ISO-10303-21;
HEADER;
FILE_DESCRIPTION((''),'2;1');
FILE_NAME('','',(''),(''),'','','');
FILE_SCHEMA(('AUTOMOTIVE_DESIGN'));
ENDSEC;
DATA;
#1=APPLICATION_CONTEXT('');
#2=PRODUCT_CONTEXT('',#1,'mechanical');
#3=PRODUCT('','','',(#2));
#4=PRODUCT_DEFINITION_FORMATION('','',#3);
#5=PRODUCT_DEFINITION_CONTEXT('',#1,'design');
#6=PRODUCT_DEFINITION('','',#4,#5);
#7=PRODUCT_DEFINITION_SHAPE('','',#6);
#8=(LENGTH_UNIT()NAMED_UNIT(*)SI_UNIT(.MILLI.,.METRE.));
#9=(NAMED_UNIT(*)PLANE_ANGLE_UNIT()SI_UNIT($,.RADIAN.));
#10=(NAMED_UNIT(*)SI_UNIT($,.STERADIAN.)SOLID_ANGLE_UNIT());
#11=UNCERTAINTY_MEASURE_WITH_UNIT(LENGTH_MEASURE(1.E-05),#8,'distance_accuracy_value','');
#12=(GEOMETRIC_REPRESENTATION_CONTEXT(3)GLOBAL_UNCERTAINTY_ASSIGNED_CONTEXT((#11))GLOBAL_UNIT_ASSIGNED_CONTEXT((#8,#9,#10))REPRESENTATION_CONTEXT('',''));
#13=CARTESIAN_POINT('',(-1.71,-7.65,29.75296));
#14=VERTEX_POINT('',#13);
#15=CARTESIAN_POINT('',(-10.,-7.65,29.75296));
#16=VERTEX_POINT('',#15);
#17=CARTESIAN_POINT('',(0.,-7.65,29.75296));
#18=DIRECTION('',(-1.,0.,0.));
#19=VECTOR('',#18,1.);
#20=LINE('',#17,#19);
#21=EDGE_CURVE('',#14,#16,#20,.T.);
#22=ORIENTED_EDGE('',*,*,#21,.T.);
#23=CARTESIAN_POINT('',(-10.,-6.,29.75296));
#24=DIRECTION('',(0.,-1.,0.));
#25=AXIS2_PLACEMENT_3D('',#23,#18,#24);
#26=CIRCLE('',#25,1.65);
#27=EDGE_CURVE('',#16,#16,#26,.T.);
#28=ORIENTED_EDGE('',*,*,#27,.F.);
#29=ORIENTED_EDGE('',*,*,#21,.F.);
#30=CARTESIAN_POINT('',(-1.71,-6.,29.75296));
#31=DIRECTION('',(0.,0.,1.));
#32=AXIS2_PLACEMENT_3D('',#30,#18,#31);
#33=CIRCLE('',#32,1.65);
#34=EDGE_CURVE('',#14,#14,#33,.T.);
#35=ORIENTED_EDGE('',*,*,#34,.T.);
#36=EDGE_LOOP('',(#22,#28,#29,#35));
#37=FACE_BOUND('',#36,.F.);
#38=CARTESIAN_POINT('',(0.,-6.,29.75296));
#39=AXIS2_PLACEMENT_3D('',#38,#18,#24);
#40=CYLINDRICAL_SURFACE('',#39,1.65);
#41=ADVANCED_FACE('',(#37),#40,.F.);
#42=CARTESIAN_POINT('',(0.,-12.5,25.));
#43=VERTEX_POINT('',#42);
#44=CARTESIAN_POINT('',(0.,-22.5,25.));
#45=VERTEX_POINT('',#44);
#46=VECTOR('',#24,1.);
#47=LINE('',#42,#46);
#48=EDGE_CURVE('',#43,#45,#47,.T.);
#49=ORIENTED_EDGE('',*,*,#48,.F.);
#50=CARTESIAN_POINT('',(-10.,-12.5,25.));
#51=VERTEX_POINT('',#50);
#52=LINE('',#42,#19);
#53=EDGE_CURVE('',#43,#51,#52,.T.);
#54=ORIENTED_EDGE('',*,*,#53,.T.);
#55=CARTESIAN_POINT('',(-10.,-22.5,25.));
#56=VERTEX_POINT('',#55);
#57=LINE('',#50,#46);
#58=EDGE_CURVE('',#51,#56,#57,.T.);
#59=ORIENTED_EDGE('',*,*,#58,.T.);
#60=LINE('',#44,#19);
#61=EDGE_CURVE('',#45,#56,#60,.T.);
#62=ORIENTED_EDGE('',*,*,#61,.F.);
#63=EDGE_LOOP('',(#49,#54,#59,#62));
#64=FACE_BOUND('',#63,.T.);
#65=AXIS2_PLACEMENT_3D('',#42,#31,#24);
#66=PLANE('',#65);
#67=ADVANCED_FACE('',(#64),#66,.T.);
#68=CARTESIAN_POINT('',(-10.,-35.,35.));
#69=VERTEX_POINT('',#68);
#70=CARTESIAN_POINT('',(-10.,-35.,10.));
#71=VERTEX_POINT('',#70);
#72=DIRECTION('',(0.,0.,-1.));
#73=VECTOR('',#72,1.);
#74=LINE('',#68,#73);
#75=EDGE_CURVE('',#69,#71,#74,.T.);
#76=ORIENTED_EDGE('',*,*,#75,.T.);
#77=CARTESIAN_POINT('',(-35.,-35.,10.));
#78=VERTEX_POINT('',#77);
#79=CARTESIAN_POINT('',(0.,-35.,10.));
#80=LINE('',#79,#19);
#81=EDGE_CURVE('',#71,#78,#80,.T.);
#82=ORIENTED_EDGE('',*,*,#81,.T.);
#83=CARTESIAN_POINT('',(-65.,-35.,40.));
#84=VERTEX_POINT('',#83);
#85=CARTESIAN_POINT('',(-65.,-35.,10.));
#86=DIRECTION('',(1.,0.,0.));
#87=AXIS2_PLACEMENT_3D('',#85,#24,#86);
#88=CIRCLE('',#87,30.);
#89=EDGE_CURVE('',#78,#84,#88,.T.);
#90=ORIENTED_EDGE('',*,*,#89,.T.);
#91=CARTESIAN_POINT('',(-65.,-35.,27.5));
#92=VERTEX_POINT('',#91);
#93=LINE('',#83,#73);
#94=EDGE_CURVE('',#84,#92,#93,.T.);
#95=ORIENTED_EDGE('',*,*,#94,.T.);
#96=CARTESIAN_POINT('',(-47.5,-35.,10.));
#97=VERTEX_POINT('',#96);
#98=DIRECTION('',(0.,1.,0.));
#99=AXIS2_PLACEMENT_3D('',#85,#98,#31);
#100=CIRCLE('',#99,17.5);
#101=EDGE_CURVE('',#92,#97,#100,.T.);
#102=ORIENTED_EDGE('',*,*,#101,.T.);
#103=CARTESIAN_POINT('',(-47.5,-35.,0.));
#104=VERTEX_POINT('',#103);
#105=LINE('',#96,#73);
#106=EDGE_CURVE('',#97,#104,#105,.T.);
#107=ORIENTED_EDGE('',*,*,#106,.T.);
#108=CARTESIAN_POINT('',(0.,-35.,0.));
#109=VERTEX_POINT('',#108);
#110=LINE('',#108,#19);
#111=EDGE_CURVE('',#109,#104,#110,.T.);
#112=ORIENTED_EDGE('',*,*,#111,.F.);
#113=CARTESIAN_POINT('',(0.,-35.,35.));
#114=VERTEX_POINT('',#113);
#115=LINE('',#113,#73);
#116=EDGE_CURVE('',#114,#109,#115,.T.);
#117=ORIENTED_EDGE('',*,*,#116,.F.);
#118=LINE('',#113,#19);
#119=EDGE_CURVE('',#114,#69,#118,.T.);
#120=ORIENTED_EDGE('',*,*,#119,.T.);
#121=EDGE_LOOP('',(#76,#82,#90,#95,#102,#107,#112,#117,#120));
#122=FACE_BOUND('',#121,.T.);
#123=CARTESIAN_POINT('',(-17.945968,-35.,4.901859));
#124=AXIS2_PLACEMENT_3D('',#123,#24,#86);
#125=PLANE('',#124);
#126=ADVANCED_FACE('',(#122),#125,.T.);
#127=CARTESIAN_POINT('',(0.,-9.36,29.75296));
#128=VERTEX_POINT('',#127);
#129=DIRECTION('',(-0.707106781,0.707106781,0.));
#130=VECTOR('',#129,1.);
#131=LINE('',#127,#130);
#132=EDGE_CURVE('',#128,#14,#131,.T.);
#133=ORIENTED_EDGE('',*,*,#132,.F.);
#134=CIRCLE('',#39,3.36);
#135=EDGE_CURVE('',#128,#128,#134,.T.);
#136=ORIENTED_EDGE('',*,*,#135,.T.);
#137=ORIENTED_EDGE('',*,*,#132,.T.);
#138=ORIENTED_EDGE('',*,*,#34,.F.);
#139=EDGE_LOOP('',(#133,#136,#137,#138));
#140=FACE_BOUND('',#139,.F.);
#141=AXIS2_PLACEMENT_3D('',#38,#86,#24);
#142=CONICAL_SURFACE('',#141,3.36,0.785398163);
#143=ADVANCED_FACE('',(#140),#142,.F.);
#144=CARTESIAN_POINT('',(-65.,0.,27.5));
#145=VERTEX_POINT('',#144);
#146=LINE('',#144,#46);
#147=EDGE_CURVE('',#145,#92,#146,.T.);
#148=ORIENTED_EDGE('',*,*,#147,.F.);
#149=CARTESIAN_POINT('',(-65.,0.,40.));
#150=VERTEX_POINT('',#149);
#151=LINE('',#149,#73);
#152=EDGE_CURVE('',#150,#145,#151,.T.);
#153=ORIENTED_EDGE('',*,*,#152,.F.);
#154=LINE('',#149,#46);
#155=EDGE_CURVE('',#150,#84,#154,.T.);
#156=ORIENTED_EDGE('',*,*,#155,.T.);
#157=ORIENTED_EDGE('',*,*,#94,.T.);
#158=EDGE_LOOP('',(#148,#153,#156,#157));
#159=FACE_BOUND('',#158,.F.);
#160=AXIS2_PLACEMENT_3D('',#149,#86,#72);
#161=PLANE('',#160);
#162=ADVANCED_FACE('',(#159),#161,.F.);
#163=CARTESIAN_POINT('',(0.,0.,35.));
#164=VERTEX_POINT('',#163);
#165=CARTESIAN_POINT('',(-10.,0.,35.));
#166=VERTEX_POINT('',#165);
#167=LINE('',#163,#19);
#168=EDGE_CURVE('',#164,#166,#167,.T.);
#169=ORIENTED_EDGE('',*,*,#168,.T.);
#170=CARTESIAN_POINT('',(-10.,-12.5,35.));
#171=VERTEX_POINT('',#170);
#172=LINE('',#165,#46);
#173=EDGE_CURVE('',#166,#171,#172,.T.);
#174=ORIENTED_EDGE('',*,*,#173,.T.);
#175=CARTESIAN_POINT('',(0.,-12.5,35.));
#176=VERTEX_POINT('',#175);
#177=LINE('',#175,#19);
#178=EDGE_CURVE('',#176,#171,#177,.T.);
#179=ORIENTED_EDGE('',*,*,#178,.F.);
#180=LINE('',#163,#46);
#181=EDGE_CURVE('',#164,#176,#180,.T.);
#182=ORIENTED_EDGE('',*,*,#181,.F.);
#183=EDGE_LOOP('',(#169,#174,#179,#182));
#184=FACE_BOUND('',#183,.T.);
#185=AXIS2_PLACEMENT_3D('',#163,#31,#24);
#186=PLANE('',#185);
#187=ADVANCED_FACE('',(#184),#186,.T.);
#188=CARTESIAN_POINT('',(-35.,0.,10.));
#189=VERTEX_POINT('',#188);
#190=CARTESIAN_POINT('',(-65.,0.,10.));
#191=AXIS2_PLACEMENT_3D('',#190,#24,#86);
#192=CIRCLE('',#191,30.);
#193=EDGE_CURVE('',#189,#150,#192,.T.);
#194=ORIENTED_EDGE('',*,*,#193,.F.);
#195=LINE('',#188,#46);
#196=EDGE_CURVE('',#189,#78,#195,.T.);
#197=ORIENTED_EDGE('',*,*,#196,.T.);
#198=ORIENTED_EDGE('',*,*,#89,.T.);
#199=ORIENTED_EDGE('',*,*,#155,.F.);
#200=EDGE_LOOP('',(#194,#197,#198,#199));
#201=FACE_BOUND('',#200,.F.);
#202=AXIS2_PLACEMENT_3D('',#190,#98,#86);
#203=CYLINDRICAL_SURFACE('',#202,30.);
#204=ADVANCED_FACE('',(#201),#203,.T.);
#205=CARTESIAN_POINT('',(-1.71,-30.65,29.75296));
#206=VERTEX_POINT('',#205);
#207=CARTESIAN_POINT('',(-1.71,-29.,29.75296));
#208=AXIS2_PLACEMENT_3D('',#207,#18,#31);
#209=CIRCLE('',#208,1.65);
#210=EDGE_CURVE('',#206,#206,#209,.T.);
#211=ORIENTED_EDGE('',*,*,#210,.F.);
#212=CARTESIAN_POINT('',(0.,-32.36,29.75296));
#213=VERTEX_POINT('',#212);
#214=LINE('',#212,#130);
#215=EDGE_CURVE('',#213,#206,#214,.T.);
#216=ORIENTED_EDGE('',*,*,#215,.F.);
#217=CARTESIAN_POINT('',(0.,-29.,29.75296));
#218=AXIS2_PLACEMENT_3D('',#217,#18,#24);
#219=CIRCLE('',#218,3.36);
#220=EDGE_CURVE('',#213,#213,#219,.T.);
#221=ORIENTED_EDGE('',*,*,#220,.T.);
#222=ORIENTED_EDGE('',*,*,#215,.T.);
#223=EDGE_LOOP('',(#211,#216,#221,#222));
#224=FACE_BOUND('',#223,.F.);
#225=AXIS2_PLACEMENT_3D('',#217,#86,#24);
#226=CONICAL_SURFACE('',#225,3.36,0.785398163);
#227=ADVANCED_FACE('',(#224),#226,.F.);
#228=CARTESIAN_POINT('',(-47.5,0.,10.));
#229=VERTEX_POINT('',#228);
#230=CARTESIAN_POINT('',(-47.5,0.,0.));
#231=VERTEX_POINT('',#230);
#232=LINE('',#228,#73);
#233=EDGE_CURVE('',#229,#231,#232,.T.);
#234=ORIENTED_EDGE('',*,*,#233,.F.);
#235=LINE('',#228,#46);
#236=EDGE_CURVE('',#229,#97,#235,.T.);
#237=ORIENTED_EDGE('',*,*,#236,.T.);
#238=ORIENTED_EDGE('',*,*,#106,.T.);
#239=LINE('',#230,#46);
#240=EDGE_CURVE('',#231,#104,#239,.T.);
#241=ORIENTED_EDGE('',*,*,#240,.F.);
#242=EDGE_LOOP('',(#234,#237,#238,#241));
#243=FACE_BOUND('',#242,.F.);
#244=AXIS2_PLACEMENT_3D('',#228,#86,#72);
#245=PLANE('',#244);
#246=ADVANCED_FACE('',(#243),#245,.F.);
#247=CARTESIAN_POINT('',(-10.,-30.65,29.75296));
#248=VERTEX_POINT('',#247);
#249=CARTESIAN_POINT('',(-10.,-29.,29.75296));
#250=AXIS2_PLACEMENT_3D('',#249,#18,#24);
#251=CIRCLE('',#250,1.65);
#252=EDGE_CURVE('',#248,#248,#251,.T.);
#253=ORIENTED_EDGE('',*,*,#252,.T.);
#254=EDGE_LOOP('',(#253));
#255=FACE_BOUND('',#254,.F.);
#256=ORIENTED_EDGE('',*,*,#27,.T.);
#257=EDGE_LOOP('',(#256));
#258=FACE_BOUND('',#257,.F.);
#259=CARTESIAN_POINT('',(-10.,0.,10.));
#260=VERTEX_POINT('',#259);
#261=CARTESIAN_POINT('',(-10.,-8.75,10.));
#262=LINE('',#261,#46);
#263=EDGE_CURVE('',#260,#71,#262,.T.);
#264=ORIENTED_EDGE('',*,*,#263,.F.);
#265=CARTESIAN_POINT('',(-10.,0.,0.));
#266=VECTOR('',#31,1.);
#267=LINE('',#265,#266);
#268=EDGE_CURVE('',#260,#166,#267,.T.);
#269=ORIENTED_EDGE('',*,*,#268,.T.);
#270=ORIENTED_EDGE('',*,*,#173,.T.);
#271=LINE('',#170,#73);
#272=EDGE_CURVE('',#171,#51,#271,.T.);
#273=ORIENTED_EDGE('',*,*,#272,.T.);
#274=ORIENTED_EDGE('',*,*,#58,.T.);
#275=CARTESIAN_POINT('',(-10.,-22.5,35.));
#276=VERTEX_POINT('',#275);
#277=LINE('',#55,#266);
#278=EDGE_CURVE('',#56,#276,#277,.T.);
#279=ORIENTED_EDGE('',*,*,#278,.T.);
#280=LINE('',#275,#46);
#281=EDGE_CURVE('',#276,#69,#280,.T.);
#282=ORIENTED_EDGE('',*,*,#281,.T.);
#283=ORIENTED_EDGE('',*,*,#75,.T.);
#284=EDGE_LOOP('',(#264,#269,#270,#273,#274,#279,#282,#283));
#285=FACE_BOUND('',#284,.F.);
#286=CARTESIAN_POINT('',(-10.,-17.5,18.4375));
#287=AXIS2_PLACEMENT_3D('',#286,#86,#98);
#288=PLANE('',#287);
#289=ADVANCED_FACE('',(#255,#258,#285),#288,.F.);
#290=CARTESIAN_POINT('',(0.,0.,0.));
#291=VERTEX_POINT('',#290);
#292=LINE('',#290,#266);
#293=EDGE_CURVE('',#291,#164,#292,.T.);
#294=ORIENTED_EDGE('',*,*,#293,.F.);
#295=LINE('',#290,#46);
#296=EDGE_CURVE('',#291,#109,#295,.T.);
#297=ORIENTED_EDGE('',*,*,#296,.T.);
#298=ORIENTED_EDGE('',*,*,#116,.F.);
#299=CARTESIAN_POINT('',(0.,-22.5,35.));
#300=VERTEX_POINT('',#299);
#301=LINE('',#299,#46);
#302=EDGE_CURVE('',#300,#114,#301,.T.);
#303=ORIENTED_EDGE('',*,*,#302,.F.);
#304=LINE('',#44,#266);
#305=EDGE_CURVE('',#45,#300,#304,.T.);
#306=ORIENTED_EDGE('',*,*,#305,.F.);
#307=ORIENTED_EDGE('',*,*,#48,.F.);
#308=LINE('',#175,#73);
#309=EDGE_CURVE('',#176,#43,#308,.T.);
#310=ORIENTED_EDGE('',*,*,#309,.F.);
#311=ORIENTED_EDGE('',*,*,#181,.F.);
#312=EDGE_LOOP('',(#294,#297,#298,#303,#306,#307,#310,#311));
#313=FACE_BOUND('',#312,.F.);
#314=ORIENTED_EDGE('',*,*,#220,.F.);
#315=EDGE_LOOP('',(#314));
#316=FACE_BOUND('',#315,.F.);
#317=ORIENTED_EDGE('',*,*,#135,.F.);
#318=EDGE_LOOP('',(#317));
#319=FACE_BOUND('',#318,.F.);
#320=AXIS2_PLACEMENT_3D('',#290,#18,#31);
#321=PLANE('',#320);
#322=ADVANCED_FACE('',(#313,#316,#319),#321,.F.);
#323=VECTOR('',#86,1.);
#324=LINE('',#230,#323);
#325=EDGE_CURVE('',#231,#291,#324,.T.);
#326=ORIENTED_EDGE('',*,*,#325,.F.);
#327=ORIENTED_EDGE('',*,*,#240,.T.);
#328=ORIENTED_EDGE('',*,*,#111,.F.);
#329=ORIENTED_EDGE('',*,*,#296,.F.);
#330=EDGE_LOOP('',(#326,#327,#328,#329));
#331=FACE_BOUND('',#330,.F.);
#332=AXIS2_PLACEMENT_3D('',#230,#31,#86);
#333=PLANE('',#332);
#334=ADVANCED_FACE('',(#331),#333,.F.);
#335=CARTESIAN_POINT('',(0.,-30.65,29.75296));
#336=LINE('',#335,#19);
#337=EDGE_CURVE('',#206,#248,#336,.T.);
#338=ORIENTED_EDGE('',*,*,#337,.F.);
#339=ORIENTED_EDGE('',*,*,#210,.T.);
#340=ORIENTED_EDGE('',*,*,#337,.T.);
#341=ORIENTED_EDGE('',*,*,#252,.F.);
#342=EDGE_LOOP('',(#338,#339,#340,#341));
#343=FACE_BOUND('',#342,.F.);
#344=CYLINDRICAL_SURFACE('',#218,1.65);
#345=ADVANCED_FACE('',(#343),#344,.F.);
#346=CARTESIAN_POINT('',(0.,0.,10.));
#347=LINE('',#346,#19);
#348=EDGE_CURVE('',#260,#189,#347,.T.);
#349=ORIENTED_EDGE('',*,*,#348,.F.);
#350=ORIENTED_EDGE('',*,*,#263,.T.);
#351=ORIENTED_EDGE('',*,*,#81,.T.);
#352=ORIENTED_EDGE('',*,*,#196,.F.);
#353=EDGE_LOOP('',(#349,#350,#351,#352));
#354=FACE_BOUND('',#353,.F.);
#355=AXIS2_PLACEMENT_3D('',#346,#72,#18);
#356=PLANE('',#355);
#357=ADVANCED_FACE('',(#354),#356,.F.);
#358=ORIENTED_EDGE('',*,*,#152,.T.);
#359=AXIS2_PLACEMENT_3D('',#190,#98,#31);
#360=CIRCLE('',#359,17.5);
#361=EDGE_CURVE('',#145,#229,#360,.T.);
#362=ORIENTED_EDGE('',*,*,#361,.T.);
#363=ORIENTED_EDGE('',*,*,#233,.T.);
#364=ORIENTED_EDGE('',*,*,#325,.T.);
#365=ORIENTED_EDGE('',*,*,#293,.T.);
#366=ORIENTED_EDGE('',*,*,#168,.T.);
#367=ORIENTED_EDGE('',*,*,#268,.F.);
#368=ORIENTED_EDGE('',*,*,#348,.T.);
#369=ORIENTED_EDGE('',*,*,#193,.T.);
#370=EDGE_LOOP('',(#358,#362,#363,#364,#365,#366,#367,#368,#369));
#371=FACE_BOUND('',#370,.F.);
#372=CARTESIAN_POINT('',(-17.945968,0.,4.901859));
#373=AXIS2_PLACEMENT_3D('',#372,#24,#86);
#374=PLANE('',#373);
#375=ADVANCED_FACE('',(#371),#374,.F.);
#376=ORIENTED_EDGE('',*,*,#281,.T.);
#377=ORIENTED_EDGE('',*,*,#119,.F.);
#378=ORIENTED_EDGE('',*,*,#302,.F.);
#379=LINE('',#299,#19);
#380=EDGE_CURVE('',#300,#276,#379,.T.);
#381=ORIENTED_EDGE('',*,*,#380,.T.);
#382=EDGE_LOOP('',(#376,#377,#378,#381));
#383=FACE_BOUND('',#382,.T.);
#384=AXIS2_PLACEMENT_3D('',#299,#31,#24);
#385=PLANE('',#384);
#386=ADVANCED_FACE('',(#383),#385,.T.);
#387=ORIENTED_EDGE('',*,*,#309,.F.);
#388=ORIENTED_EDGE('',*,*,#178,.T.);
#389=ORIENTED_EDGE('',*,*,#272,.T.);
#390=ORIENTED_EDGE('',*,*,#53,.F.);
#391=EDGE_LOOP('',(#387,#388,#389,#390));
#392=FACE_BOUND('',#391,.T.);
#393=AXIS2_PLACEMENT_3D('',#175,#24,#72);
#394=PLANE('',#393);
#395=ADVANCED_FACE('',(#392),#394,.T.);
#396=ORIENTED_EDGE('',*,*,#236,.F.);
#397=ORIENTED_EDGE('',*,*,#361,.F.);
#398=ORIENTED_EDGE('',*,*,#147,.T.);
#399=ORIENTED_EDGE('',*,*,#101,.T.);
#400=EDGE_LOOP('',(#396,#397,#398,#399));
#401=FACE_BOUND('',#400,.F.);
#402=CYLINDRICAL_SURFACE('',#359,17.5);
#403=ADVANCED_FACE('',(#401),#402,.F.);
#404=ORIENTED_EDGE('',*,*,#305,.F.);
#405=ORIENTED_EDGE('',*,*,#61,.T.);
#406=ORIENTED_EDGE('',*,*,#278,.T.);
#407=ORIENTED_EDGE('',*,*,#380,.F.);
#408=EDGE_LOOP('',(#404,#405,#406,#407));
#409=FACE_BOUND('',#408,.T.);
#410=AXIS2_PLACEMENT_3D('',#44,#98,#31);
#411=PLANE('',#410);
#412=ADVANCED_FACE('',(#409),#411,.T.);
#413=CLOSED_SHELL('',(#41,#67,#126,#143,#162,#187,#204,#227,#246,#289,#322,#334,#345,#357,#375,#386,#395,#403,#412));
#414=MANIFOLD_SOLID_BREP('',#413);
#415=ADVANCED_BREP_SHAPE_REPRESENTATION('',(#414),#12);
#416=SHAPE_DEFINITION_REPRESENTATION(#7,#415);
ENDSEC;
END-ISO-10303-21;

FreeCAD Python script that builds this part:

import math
import FreeCAD as App
import Part
import Sketcher
from FreeCAD import Vector


def add_polygon(sketch, points):
    """Adds a closed chain of lines whose ends are joined by coincident constraints."""
    first, n = sketch.GeometryCount, len(points)
    for a, b in zip(points, points[1:] + points[:1]):
        sketch.addGeometry(Part.LineSegment(App.Vector(*a, 0), App.Vector(*b, 0)), False)
    for i in range(n):
        sketch.addConstraint(Sketcher.Constraint("Coincident", first + i, 2, first + (i + 1) % n, 1))

doc = App.newDocument("Part")
params = doc.addObject("Spreadsheet::Sheet", "Params")
for row, (alias, value) in enumerate([
    ("sketch1_radius", "30 mm"),
    ("sketch1_radius2", "17.5 mm"),
    ("sketch1_width", "35 mm"),
    ("sketch1_height", "10 mm"),
    ("pad1_length", "35 mm"),
    ("sketch2_width", "35 mm"),
    ("sketch2_width2", "10 mm"),
    ("pad2_length", "10 mm"),
    ("sketch3_diameter", "3.3 mm"),
    ("hole_diameter", "3.3 mm"),
    ("hole_depth", "13.5 mm"),
    ("hole_csink_diameter", "6.72 mm"),
], start=1):
    params.set(f"A{row}", alias)
    params.set(f"B{row}", "=" + value)
    params.setAlias(f"B{row}", alias)

body = doc.addObject("PartDesign::Body", "Body")

# Sketch on XZ plane
sketch1 = body.newObject("Sketcher::SketchObject", "Sketch")
sketch1.AttachmentSupport = (doc.getObject("XZ_Plane"), [""])
sketch1.MapMode = "FlatFace"
sketch1.addGeometry(Part.LineSegment(Vector(0, 0, 0), Vector(0, 10, 0)), False)
sketch1.addGeometry(Part.LineSegment(Vector(0, 10, 0), Vector(-35, 10, 0)), False)
sketch1.addGeometry(Part.ArcOfCircle(Part.Circle(Vector(-65, 10, 0), Vector(0, 0, 1), 30), math.radians(0), math.radians(90)), False)
sketch1.addGeometry(Part.LineSegment(Vector(-65, 40, 0), Vector(-65, 27.5, 0)), False)
sketch1.addGeometry(Part.ArcOfCircle(Part.Circle(Vector(-65, 10, 0), Vector(0, 0, 1), 17.5), math.radians(0), math.radians(90)), False)
sketch1.addGeometry(Part.LineSegment(Vector(-47.5, 10, 0), Vector(-47.5, 0, 0)), False)
sketch1.addGeometry(Part.LineSegment(Vector(-47.5, 0, 0), Vector(0, 0, 0)), False)
sketch1.addConstraint(Sketcher.Constraint("Coincident", 0, 2, 1, 1))
sketch1.addConstraint(Sketcher.Constraint("Coincident", 1, 2, 2, 1))
sketch1.addConstraint(Sketcher.Constraint("Coincident", 2, 2, 3, 1))
sketch1.addConstraint(Sketcher.Constraint("Coincident", 3, 2, 4, 2))
sketch1.addConstraint(Sketcher.Constraint("Tangent", 4, 1, 5, 1))
sketch1.addConstraint(Sketcher.Constraint("Coincident", 5, 2, 6, 1))
sketch1.addConstraint(Sketcher.Constraint("Coincident", 6, 2, 0, 1))
sketch1.addConstraint(Sketcher.Constraint("Vertical", 0))
sketch1.addConstraint(Sketcher.Constraint("Horizontal", 1))
sketch1.addConstraint(Sketcher.Constraint("Vertical", 3))
sketch1.addConstraint(Sketcher.Constraint("Vertical", 5))
sketch1.addConstraint(Sketcher.Constraint("Horizontal", 6))
sketch1.addConstraint(Sketcher.Constraint("Coincident", 6, 2, -1, 1))
sketch1.addConstraint(Sketcher.Constraint("Coincident", 4, 3, 2, 3))
sketch1.addConstraint(Sketcher.Constraint("Horizontal", 4, 3, 0, 2))
sketch1.addConstraint(Sketcher.Constraint("Vertical", 4, 3, 2, 2))
sketch1.addConstraint(Sketcher.Constraint("Radius", 2, 30.0))
sketch1.addConstraint(Sketcher.Constraint("Radius", 4, 17.5))
sketch1.addConstraint(Sketcher.Constraint("DistanceX", 1, 2, 1, 1, 35.0))
sketch1.addConstraint(Sketcher.Constraint("DistanceY", 0, 1, 0, 2, 10.0))
sketch1.setExpression("Constraints[16]", "Params.sketch1_radius")
sketch1.setExpression("Constraints[17]", "Params.sketch1_radius2")
sketch1.setExpression("Constraints[18]", "Params.sketch1_width")
sketch1.setExpression("Constraints[19]", "Params.sketch1_height")
pad1 = body.newObject("PartDesign::Pad", "Pad")
pad1.Profile = sketch1
pad1.setExpression("Length", "Params.pad1_length")

# Sketch on YZ plane
sketch2 = body.newObject("Sketcher::SketchObject", "Sketch001")
sketch2.AttachmentSupport = (doc.getObject("YZ_Plane"), [""])
sketch2.MapMode = "FlatFace"
add_polygon(sketch2, [(-35, 0), (0, 0), (0, 35), (-12.5, 35), (-12.5, 25), (-22.5, 25), (-22.5, 35), (-35, 35)])  # lines 0-7
sketch2.addConstraint(Sketcher.Constraint("Horizontal", 0))
sketch2.addConstraint(Sketcher.Constraint("Vertical", 1))
sketch2.addConstraint(Sketcher.Constraint("Horizontal", 2))
sketch2.addConstraint(Sketcher.Constraint("Vertical", 3))
sketch2.addConstraint(Sketcher.Constraint("Horizontal", 4))
sketch2.addConstraint(Sketcher.Constraint("Vertical", 5))
sketch2.addConstraint(Sketcher.Constraint("Horizontal", 6))
sketch2.addConstraint(Sketcher.Constraint("Vertical", 7))
sketch2.addConstraint(Sketcher.Constraint("Coincident", 0, 2, -1, 1))
sketch2.addConstraint(Sketcher.Constraint("Horizontal", 2, 2, 5, 2))
sketch2.addConstraint(Sketcher.Constraint("Equal", 2, 6))
sketch2.addConstraint(Sketcher.Constraint("Equal", 0, 1))
sketch2.addConstraint(Sketcher.Constraint("Equal", 4, 3))
sketch2.addConstraint(Sketcher.Constraint("DistanceX", 0, 1, 0, 2, 35.0))
sketch2.addConstraint(Sketcher.Constraint("DistanceX", 4, 2, 4, 1, 10.0))
sketch2.setExpression("Constraints[21]", "Params.sketch2_width")
sketch2.setExpression("Constraints[22]", "Params.sketch2_width2")
pad2 = body.newObject("PartDesign::Pad", "Pad001")
pad2.Profile = sketch2
pad2.setExpression("Length", "Params.pad2_length")
pad2.Reversed = True

# Sketch on YZ plane
sketch3 = body.newObject("Sketcher::SketchObject", "Sketch002")
sketch3.AttachmentSupport = (doc.getObject("YZ_Plane"), [""])
sketch3.MapMode = "FlatFace"
sketch3.addGeometry(Part.Circle(Vector(-29, 29.75296, 0), Vector(0, 0, 1), 1.65), False)
sketch3.addGeometry(Part.Circle(Vector(-6, 29.75296, 0), Vector(0, 0, 1), 1.65), False)
sketch3.addConstraint(Sketcher.Constraint("Equal", 0, 1))
sketch3.addConstraint(Sketcher.Constraint("Horizontal", 0, 3, 1, 3))
sketch3.addConstraint(Sketcher.Constraint("Diameter", 0, 3.3))
sketch3.addConstraint(Sketcher.Constraint("DistanceX", 0, 3, -1, 1, 29.0))
sketch3.addConstraint(Sketcher.Constraint("DistanceX", 1, 3, -1, 1, 6.0))
sketch3.addConstraint(Sketcher.Constraint("DistanceY", -1, 1, 0, 3, 29.75296))
sketch3.setExpression("Constraints[2]", "Params.sketch3_diameter")
doc.recompute()
hole = body.newObject("PartDesign::Hole", "Hole")
hole.Profile = sketch3
hole.ThreadType = "None"
hole.setExpression("Diameter", "Params.hole_diameter")
hole.DepthType = "Dimension"
hole.setExpression("Depth", "Params.hole_depth")
hole.DrillPoint = "Angled"
hole.DrillPointAngle = 118
hole.HoleCutType = "Countersink"
hole.setExpression("HoleCutDiameter", "Params.hole_csink_diameter")
hole.HoleCutCountersinkAngle = 90

doc.recompute()
